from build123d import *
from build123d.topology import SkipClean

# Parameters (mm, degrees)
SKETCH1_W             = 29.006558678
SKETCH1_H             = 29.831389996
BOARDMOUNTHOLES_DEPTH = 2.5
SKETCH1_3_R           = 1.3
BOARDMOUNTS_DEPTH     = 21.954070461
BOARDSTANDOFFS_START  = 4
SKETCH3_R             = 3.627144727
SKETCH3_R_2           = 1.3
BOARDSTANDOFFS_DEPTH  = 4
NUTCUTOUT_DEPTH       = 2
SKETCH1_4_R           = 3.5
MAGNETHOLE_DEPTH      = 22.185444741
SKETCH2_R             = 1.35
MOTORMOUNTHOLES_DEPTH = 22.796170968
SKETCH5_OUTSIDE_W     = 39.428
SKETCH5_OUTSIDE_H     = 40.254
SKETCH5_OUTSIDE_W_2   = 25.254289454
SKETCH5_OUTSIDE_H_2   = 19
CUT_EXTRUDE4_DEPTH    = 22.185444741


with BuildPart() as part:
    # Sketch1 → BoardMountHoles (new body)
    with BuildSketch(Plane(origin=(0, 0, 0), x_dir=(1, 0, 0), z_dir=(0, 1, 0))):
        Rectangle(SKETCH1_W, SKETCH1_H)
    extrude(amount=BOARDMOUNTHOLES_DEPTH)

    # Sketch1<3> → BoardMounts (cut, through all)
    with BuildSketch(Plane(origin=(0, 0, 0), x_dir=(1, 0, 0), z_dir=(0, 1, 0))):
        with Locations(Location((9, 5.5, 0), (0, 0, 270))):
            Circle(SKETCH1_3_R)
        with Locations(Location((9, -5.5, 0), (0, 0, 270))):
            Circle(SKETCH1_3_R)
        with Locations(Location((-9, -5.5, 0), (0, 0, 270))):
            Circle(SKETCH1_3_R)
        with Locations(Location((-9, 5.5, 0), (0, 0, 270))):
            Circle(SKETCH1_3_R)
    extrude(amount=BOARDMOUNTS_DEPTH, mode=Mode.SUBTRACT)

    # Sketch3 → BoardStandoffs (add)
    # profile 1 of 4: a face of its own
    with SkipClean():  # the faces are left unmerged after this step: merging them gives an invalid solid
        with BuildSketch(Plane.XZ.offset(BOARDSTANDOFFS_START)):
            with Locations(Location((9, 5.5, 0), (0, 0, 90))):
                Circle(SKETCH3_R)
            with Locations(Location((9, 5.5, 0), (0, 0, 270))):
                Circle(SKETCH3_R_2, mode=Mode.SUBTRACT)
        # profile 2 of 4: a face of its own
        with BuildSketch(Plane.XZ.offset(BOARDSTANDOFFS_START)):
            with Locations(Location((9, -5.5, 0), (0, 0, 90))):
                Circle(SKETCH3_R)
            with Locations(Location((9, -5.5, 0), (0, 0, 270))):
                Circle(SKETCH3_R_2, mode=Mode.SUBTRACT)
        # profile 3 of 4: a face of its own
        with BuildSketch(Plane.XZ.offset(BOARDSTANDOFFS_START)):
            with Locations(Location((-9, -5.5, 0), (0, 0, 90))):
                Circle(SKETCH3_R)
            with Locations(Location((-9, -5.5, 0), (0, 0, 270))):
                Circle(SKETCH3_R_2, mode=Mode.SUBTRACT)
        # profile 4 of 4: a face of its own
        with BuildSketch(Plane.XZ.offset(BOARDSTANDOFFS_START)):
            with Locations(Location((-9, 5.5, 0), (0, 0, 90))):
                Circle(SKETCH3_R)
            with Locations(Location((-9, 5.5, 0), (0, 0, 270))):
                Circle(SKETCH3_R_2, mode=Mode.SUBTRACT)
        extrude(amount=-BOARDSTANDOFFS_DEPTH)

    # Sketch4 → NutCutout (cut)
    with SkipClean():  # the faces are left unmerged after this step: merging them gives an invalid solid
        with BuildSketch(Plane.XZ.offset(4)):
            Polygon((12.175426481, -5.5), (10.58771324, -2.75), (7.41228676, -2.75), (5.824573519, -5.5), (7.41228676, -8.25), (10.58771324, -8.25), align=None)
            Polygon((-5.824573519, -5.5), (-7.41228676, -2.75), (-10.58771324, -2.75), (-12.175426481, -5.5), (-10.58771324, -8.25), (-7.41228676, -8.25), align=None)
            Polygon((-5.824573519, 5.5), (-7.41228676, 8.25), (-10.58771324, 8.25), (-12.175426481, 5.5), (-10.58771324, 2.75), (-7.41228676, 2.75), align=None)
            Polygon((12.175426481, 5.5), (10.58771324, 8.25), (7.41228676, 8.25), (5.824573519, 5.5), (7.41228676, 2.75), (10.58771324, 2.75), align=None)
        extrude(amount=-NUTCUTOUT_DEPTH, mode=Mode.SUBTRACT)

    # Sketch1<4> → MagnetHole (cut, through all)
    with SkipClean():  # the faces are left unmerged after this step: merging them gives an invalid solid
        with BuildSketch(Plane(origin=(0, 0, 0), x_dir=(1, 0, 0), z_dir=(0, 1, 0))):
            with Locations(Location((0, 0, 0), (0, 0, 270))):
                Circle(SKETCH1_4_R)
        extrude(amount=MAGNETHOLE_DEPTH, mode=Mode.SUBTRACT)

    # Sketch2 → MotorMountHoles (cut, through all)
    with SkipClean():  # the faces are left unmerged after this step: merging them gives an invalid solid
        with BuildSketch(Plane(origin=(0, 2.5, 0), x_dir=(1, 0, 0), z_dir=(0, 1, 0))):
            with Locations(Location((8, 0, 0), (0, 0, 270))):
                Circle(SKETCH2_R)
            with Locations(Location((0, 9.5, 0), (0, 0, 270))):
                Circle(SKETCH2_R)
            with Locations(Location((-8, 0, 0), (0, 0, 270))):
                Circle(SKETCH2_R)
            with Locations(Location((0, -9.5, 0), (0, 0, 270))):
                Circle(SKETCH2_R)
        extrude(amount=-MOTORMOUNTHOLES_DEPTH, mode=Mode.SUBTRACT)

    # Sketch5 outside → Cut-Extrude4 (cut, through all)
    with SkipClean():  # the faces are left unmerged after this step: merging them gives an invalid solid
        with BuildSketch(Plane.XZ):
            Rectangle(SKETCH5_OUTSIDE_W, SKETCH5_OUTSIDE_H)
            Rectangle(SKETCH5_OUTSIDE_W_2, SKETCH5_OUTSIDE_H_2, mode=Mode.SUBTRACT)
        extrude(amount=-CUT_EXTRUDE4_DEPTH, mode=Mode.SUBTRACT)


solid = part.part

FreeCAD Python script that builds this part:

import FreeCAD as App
import Part
import Sketcher
Q = App.Units.Quantity


def add_polygon(sketch, points):
    """Adds a closed chain of lines whose ends are joined by coincident constraints."""
    first, n = sketch.GeometryCount, len(points)
    for a, b in zip(points, points[1:] + points[:1]):
        sketch.addGeometry(Part.LineSegment(App.Vector(*a, 0), App.Vector(*b, 0)), False)
    for i in range(n):
        sketch.addConstraint(Sketcher.Constraint("Coincident", first + i, 2, first + (i + 1) % n, 1))

doc = App.newDocument("Part")
params = doc.addObject("Spreadsheet::Sheet", "Params")
for row, (alias, value) in enumerate([
    ("pad1_length", "2.5 mm"),
    ("sketch2_diameter", "2.6 mm"),
    ("sketch3_diameter", "2.6 mm"),
    ("pad2_length", "4 mm"),
    ("pocket2_length", "2 mm"),
    ("sketch5_diameter", "7 mm"),
    ("sketch6_diameter", "2.7 mm"),
    ("sketch7_height", "19 mm"),
], start=1):
    params.set(f"A{row}", alias)
    params.set(f"B{row}", "=" + value)
    params.setAlias(f"B{row}", alias)

body = doc.addObject("PartDesign::Body", "Body")

# Sketch on XZ plane
sketch1 = doc.addObject("Sketcher::SketchObject", "Sketch")
body.addObject(sketch1)
sketch1.AttachmentSupport = (doc.XZ_Plane, [""])
sketch1.MapMode = "FlatFace"
add_polygon(sketch1, [(-15, -15), (-15, 15), (15, 15), (15, -15)])  # lines 0-3
sketch1.addConstraint([
    Sketcher.Constraint("Vertical", 0),
    Sketcher.Constraint("Horizontal", 1),
    Sketcher.Constraint("Vertical", 2),
    Sketcher.Constraint("Horizontal", 3),
    Sketcher.Constraint("Symmetric", 0, 2, 2, 2, -1, 1),
    Sketcher.Constraint("DistanceX", 1, 1, 1, 2, 29.006559),
    Sketcher.Constraint("DistanceY", 0, 1, 0, 2, 29.83139),
])
pad1 = doc.addObject("PartDesign::Pad", "Pad")
body.addObject(pad1)
pad1.Profile = sketch1
pad1.setExpression("Length", "Params.pad1_length")
pad1.Reversed = True

# Sketch on XZ plane
sketch2 = doc.addObject("Sketcher::SketchObject", "Sketch001")
body.addObject(sketch2)
sketch2.AttachmentSupport = (doc.XZ_Plane, [""])
sketch2.MapMode = "FlatFace"
sketch2.addGeometry([
    Part.Circle(App.Vector(9, -5.5, 0), App.Vector(0, 0, 1), 1.3),
    Part.Circle(App.Vector(9, 5.5, 0), App.Vector(0, 0, 1), 1.3),
    Part.Circle(App.Vector(-9, 5.5, 0), App.Vector(0, 0, 1), 1.3),
    Part.Circle(App.Vector(-9, -5.5, 0), App.Vector(0, 0, 1), 1.3),
], False)
sketch2.addConstraint([
    Sketcher.Constraint("Equal", 0, 1),
    Sketcher.Constraint("Equal", 1, 2),
    Sketcher.Constraint("Equal", 2, 3),
    Sketcher.Constraint("Symmetric", 0, 3, 2, 3, -1, 1),
    Sketcher.Constraint("Symmetric", 1, 3, 3, 3, -1, 1),
    Sketcher.Constraint("Symmetric", 1, 3, 2, 3, -2),
    Sketcher.Constraint("Diameter", 0, 2.6),
    Sketcher.Constraint("DistanceX", -1, 1, 0, 3, 9.0),
    Sketcher.Constraint("DistanceY", 0, 3, 1, 3, 11.0),
])
sketch2.setExpression("Constraints[6]", "Params.sketch2_diameter")
pocket1 = doc.addObject("PartDesign::Pocket", "Pocket")
body.addObject(pocket1)
pocket1.Profile = sketch2
pocket1.Type = "ThroughAll"

# Sketch on XZ plane
sketch3 = doc.addObject("Sketcher::SketchObject", "Sketch002")
body.addObject(sketch3)
sketch3.AttachmentSupport = (doc.XZ_Plane, [""])
sketch3.MapMode = "FlatFace"
sketch3.AttachmentOffset = App.Placement(App.Vector(0, 0, 4), App.Rotation())
sketch3.addGeometry([
    Part.Circle(App.Vector(9, 5.5, 0), App.Vector(0, 0, 1), 3.6),  # 0
    Part.Circle(App.Vector(9, 5.5, 0), App.Vector(0, 0, 1), 1.3),  # 1
    Part.Circle(App.Vector(9, -5.5, 0), App.Vector(0, 0, 1), 3.6),  # 2
    Part.Circle(App.Vector(9, -5.5, 0), App.Vector(0, 0, 1), 1.3),  # 3
    Part.Circle(App.Vector(-9, -5.5, 0), App.Vector(0, 0, 1), 3.6),  # 4
    Part.Circle(App.Vector(-9, -5.5, 0), App.Vector(0, 0, 1), 1.3),  # 5
    Part.Circle(App.Vector(-9, 5.5, 0), App.Vector(0, 0, 1), 3.6),  # 6
    Part.Circle(App.Vector(-9, 5.5, 0), App.Vector(0, 0, 1), 1.3),  # 7
], False)
sketch3.addConstraint([
    Sketcher.Constraint("Coincident", 1, 3, 0, 3),
    Sketcher.Constraint("Coincident", 3, 3, 2, 3),
    Sketcher.Constraint("Coincident", 5, 3, 4, 3),
    Sketcher.Constraint("Coincident", 7, 3, 6, 3),
    Sketcher.Constraint("Equal", 0, 2),
    Sketcher.Constraint("Equal", 1, 3),
    Sketcher.Constraint("Equal", 2, 4),
    Sketcher.Constraint("Equal", 3, 5),
    Sketcher.Constraint("Equal", 4, 6),
    Sketcher.Constraint("Equal", 5, 7),
    Sketcher.Constraint("Symmetric", 0, 3, 4, 3, -1, 1),
    Sketcher.Constraint("Symmetric", 2, 3, 6, 3, -1, 1),
    Sketcher.Constraint("Symmetric", 2, 3, 4, 3, -2),
    Sketcher.Constraint("Diameter", 1, 2.6),
    Sketcher.Constraint("DistanceX", -1, 1, 0, 3, 9.0),
    Sketcher.Constraint("DistanceY", 2, 3, 0, 3, 11.0),
    Sketcher.Constraint("Diameter", 0, 7.254289),
])
sketch3.setExpression("Constraints[13]", "Params.sketch3_diameter")
pad2 = doc.addObject("PartDesign::Pad", "Pad001")
body.addObject(pad2)
pad2.Profile = sketch3
pad2.setExpression("Length", "Params.pad2_length")
pad2.Reversed = True

# Sketch on XZ plane
sketch4 = doc.addObject("Sketcher::SketchObject", "Sketch003")
body.addObject(sketch4)
sketch4.AttachmentSupport = (doc.XZ_Plane, [""])
sketch4.MapMode = "FlatFace"
sketch4.AttachmentOffset = App.Placement(App.Vector(0, 0, 4), App.Rotation())
add_polygon(sketch4, [(12.2, -5.5), (10.6, -2.8), (7.4, -2.8), (5.8, -5.5), (7.4, -8.2), (10.6, -8.2)])  # lines 0-5
add_polygon(sketch4, [(-5.8, -5.5), (-7.4, -2.8), (-10.6, -2.8), (-12.2, -5.5), (-10.6, -8.2), (-7.4, -8.2)])  # lines 6-11
add_polygon(sketch4, [(-5.8, 5.5), (-7.4, 8.2), (-10.6, 8.2), (-12.2, 5.5), (-10.6, 2.8), (-7.4, 2.8)])  # lines 12-17
add_polygon(sketch4, [(12.2, 5.5), (10.6, 8.2), (7.4, 8.2), (5.8, 5.5), (7.4, 2.8), (10.6, 2.8)])  # lines 18-23
sketch4.addConstraint([
    Sketcher.Constraint("Horizontal", 1),
    Sketcher.Constraint("Horizontal", 4),
    Sketcher.Constraint("Horizontal", 7),
    Sketcher.Constraint("Horizontal", 10),
    Sketcher.Constraint("Horizontal", 13),
    Sketcher.Constraint("Horizontal", 16),
    Sketcher.Constraint("Horizontal", 19),
    Sketcher.Constraint("Horizontal", 22),
    Sketcher.Constraint("Symmetric", 3, 2, 12, 2, -1, 1),
    Sketcher.Constraint("Symmetric", 5, 2, 14, 2, -1, 1),
    Sketcher.Constraint("Symmetric", 0, 2, 15, 2, -1, 1),
    Sketcher.Constraint("Symmetric", 2, 2, 17, 2, -1, 1),
    Sketcher.Constraint("Symmetric", 9, 2, 18, 2, -1, 1),
    Sketcher.Constraint("Symmetric", 11, 2, 20, 2, -1, 1),
    Sketcher.Constraint("Symmetric", 6, 2, 21, 2, -1, 1),
    Sketcher.Constraint("Symmetric", 8, 2, 23, 2, -1, 1),
    Sketcher.Constraint("Symmetric", 1, 2, 6, 2, -2),
    Sketcher.Constraint("Symmetric", 5, 2, 8, 2, -2),
    Sketcher.Constraint("Symmetric", 4, 2, 9, 2, -2),
    Sketcher.Constraint("Symmetric", 2, 2, 11, 2, -2),
    Sketcher.Constraint("Parallel", 0, 3),
    Sketcher.Constraint("Parallel", 2, 5),
    Sketcher.Constraint("Parallel", 3, 6),
    Sketcher.Constraint("Parallel", 5, 8),
    Sketcher.Constraint("Parallel", 8, 11),
    Sketcher.Constraint("Parallel", 11, 14),
    Sketcher.Constraint("Parallel", 14, 17),
    Sketcher.Constraint("Parallel", 17, 20),
    Sketcher.Constraint("Parallel", 20, 23),
    Sketcher.Constraint("Horizontal", 2, 2, 5, 2),
    Sketcher.Constraint("Vertical", 1, 2, 3, 2),
    Sketcher.Constraint("Angle", 0, Q("120 deg")),
    Sketcher.Constraint("DistanceX", 6, 2, 0, 2, 18.0),
    Sketcher.Constraint("DistanceY", 6, 2, 12, 2, 11.0),
    Sketcher.Constraint("DistanceY", 3, 2, 1, 2, 5.5),
    Sketcher.Constraint("DistanceX", 1, 2, 1, 1, 3.175426),
])
pocket2 = doc.addObject("PartDesign::Pocket", "Pocket001")
body.addObject(pocket2)
pocket2.Profile = sketch4
pocket2.setExpression("Length", "Params.pocket2_length")

# Sketch on XZ plane
sketch5 = doc.addObject("Sketcher::SketchObject", "Sketch004")
body.addObject(sketch5)
sketch5.AttachmentSupport = (doc.XZ_Plane, [""])
sketch5.MapMode = "FlatFace"
sketch5.addGeometry(Part.Circle(App.Vector(0, 0, 0), App.Vector(0, 0, 1), 3.5), False)
sketch5.addConstraint([
    Sketcher.Constraint("Coincident", 0, 3, -1, 1),
    Sketcher.Constraint("Diameter", 0, 7.0),
])
sketch5.setExpression("Constraints[1]", "Params.sketch5_diameter")
pocket3 = doc.addObject("PartDesign::Pocket", "Pocket002")
body.addObject(pocket3)
pocket3.Profile = sketch5
pocket3.Type = "ThroughAll"

# Sketch on XZ plane
sketch6 = doc.addObject("Sketcher::SketchObject", "Sketch005")
body.addObject(sketch6)
sketch6.AttachmentSupport = (doc.XZ_Plane, [""])
sketch6.MapMode = "FlatFace"
sketch6.AttachmentOffset = App.Placement(App.Vector(0, 0, -2.5), App.Rotation())
sketch6.addGeometry([
    Part.Circle(App.Vector(8, 0, 0), App.Vector(0, 0, 1), 1.4),
    Part.Circle(App.Vector(0, -9.5, 0), App.Vector(0, 0, 1), 1.4),
    Part.Circle(App.Vector(-8, 0, 0), App.Vector(0, 0, 1), 1.4),
    Part.Circle(App.Vector(0, 9.5, 0), App.Vector(0, 0, 1), 1.4),
], False)
sketch6.addConstraint([
    Sketcher.Constraint("Equal", 0, 1),
    Sketcher.Constraint("Equal", 1, 2),
    Sketcher.Constraint("Equal", 2, 3),
    Sketcher.Constraint("Symmetric", 0, 3, 2, 3, -1, 1),
    Sketcher.Constraint("Symmetric", 1, 3, 3, 3, -1, 1),
    Sketcher.Constraint("PointOnObject", 0, 3, -1),
    Sketcher.Constraint("PointOnObject", 1, 3, -2),
    Sketcher.Constraint("Diameter", 0, 2.7),
    Sketcher.Constraint("DistanceX", -1, 1, 0, 3, 8.0),
    Sketcher.Constraint("DistanceY", 1, 3, 3, 3, 19.0),
])
sketch6.setExpression("Constraints[7]", "Params.sketch6_diameter")
pocket4 = doc.addObject("PartDesign::Pocket", "Pocket003")
body.addObject(pocket4)
pocket4.Profile = sketch6
pocket4.Type = "ThroughAll"
pocket4.Reversed = True

# Sketch on XZ plane
sketch7 = doc.addObject("Sketcher::SketchObject", "Sketch006")
body.addObject(sketch7)
sketch7.AttachmentSupport = (doc.XZ_Plane, [""])
sketch7.MapMode = "FlatFace"
add_polygon(sketch7, [(-20, 20), (-20, -20), (20, -20), (20, 20)])  # lines 0-3
add_polygon(sketch7, [(13, -10), (-13, -10), (-13, 10), (13, 10)])  # lines 4-7
sketch7.addConstraint([
    Sketcher.Constraint("Vertical", 0),
    Sketcher.Constraint("Horizontal", 1),
    Sketcher.Constraint("Vertical", 2),
    Sketcher.Constraint("Horizontal", 3),
    Sketcher.Constraint("Horizontal", 4),
    Sketcher.Constraint("Vertical", 5),
    Sketcher.Constraint("Horizontal", 6),
    Sketcher.Constraint("Vertical", 7),
    Sketcher.Constraint("Symmetric", 0, 2, 2, 2, -1, 1),
    Sketcher.Constraint("Symmetric", 4, 2, 6, 2, -1, 1),
    Sketcher.Constraint("DistanceY", 5, 1, 5, 2, 19.0),
    Sketcher.Constraint("DistanceX", 1, 1, 1, 2, 39.428),
    Sketcher.Constraint("DistanceY", 0, 2, 0, 1, 40.254),
    Sketcher.Constraint("DistanceX", 4, 2, 4, 1, 25.254289),
])
sketch7.setExpression("Constraints[18]", "Params.sketch7_height")
pocket5 = doc.addObject("PartDesign::Pocket", "Pocket004")
body.addObject(pocket5)
pocket5.Profile = sketch7
pocket5.Type = "ThroughAll"

doc.recompute()
